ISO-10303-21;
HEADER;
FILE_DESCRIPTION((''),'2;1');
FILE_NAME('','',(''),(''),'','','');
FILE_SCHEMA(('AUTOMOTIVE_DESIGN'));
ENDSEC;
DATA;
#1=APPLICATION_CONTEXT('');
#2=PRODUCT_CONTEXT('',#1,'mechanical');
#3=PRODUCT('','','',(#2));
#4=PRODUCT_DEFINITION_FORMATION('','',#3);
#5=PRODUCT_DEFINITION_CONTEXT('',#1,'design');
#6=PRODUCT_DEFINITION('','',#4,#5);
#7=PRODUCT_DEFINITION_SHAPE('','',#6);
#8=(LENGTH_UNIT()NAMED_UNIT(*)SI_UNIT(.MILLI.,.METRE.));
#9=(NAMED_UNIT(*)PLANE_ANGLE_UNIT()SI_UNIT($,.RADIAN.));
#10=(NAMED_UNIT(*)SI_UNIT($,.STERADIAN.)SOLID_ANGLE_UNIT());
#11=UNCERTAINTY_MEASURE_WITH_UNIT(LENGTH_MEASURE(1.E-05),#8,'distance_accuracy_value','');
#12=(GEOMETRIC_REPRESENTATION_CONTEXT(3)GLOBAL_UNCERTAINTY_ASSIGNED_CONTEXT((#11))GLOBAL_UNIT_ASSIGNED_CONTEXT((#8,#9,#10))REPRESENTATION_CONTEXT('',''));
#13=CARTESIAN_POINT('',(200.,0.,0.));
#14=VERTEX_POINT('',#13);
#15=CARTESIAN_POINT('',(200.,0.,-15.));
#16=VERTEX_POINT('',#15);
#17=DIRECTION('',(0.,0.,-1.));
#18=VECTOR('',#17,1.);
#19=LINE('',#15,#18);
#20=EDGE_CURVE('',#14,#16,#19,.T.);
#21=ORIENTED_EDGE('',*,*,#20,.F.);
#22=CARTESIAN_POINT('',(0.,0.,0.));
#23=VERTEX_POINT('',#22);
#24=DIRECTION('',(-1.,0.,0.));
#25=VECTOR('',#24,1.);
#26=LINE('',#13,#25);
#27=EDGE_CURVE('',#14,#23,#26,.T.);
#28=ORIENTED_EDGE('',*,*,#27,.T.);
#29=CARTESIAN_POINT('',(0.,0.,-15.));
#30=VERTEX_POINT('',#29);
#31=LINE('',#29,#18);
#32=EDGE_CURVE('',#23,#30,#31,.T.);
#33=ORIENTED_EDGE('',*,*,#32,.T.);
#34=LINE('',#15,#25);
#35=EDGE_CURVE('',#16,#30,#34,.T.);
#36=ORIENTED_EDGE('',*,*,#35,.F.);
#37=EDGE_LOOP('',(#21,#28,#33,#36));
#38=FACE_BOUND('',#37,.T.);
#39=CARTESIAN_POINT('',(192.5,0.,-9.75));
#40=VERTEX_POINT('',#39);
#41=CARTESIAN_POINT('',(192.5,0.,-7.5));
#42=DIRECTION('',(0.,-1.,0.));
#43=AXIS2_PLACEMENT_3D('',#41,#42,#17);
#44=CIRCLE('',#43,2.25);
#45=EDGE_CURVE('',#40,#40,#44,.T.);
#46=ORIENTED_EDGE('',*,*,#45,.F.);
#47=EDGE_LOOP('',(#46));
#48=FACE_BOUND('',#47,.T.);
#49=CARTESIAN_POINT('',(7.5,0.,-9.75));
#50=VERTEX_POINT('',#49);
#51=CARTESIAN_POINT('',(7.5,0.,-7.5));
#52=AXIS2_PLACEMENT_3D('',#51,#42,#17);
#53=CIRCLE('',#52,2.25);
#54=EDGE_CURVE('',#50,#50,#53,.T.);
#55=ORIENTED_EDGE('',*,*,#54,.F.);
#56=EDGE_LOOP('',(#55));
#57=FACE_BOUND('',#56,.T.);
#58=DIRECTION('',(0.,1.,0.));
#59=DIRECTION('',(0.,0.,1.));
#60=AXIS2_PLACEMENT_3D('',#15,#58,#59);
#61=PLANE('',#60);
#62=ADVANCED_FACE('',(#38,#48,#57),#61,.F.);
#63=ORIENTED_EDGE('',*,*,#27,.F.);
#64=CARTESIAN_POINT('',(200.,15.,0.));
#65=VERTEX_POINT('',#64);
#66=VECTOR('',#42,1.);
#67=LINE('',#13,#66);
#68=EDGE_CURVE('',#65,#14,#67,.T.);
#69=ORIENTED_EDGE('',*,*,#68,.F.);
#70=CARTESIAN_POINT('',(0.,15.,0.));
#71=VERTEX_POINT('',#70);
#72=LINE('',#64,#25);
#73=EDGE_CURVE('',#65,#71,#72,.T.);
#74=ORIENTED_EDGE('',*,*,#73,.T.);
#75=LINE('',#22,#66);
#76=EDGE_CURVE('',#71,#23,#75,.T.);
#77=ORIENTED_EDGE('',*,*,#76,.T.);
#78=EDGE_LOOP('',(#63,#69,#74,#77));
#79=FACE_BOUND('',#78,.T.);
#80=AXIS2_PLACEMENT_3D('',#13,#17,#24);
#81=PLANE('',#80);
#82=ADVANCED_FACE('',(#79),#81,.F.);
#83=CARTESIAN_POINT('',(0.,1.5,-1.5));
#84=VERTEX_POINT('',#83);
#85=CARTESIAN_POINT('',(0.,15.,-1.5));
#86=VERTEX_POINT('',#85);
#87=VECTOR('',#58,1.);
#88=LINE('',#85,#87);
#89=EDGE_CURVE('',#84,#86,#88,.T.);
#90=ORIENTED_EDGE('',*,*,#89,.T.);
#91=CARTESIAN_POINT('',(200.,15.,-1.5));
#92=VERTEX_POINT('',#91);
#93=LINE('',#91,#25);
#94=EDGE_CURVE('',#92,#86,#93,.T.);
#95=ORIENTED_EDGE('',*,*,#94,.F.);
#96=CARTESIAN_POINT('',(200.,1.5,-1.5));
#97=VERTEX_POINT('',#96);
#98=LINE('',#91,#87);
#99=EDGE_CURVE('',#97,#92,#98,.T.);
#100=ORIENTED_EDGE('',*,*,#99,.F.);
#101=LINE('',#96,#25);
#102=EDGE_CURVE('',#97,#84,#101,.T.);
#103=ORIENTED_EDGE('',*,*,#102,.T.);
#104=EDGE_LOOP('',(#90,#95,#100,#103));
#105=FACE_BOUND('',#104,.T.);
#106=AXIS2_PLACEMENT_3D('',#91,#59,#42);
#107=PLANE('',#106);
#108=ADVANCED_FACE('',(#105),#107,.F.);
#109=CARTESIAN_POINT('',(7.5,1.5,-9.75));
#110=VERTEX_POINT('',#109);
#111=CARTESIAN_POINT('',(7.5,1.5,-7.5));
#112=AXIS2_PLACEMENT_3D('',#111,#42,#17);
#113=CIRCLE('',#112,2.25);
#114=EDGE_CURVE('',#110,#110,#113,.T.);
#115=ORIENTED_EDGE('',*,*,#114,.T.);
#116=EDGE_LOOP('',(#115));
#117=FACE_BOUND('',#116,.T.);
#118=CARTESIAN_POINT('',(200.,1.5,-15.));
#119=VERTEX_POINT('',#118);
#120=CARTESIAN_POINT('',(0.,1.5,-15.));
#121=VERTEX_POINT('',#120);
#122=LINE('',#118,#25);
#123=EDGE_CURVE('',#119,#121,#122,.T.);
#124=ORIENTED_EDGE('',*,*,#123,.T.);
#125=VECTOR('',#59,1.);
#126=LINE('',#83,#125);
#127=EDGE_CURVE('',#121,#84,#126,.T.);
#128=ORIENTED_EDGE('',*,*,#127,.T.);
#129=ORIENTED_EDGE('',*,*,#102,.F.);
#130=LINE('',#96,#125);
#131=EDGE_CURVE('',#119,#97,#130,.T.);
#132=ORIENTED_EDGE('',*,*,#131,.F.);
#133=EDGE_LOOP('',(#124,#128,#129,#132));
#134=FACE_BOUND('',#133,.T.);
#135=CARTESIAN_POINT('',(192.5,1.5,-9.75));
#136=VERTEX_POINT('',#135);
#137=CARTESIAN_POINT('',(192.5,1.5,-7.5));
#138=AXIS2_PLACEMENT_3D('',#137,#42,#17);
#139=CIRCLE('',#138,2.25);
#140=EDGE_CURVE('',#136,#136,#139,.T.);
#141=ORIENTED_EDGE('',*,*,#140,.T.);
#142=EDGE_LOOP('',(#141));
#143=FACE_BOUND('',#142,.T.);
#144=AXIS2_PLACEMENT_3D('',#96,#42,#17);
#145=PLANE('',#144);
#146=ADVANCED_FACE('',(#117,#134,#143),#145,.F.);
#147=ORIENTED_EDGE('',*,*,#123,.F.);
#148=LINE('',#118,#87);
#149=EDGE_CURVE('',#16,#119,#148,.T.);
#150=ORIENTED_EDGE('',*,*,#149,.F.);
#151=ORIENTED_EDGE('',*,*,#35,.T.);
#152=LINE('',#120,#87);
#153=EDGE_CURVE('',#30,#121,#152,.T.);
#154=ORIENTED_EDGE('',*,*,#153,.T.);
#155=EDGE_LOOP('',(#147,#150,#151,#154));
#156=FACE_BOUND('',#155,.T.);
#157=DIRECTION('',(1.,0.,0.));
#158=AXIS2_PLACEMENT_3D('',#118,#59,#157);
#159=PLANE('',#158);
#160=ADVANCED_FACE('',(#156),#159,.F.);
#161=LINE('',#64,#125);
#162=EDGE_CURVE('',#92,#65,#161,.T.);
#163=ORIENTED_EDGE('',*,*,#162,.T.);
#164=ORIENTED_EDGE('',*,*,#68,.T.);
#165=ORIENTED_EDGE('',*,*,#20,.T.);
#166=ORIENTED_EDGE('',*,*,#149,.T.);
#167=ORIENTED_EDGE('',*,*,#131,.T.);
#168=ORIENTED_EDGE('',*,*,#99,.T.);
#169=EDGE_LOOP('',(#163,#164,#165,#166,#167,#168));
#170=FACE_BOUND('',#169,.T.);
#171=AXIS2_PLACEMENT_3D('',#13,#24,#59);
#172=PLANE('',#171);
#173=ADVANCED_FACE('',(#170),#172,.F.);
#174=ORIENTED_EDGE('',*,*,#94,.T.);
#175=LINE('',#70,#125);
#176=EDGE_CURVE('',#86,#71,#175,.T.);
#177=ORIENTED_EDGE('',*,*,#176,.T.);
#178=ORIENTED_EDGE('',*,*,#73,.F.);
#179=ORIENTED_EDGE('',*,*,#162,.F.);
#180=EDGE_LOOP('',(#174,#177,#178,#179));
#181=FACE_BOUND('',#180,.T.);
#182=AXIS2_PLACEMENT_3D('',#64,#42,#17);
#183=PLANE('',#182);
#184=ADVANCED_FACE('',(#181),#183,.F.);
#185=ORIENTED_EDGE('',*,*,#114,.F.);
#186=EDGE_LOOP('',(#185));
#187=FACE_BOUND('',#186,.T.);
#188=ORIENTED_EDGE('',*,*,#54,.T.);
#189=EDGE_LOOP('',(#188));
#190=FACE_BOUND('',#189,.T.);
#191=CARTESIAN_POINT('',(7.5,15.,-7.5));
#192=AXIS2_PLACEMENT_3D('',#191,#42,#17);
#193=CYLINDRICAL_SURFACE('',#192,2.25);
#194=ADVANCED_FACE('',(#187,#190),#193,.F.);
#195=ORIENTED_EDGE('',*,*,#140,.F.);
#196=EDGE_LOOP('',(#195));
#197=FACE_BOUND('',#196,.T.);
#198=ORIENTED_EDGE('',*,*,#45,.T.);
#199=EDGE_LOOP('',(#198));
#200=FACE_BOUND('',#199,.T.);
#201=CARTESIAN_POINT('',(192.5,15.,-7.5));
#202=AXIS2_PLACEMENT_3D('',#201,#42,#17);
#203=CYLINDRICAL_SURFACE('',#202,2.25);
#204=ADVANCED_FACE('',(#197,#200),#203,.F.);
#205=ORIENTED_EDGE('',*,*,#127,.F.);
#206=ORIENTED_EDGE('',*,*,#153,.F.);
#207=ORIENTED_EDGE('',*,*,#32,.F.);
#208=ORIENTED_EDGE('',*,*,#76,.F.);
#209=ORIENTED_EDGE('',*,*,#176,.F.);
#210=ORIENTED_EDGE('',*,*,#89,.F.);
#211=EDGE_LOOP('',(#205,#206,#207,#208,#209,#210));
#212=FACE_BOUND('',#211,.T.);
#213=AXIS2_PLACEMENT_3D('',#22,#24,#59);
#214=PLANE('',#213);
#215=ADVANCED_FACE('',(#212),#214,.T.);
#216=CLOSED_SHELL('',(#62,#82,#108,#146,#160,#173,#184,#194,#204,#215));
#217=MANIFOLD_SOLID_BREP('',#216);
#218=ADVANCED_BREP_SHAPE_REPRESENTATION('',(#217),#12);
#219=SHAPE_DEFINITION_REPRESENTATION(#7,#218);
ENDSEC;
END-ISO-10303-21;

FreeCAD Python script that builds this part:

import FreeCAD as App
import Part
import Sketcher
Q = App.Units.Quantity

doc = App.newDocument("Part")
body = doc.addObject("PartDesign::Body", "Body")

# Sketch on YZ plane
sketch1 = body.newObject("Sketcher::SketchObject", "Sketch")
sketch1.AttachmentSupport = (doc.getObject("YZ_Plane"), [""])
sketch1.MapMode = "FlatFace"
sketch1.addGeometry([
    Part.LineSegment(App.Vector(15, 0, 0), App.Vector(0, 0, 0)),  # 0
    Part.LineSegment(App.Vector(0, 0, 0), App.Vector(0, -15, 0)),  # 1
    Part.LineSegment(App.Vector(0, -15, 0), App.Vector(1.5, -15, 0)),  # 2
    Part.LineSegment(App.Vector(1.5, -15, 0), App.Vector(1.5, -1.5, 0)),  # 3
    Part.LineSegment(App.Vector(1.5, -1.5, 0), App.Vector(15, -1.5, 0)),  # 4
    Part.LineSegment(App.Vector(15, -1.5, 0), App.Vector(15, 0, 0)),  # 5
], False)
sketch1.addConstraint([
    Sketcher.Constraint("Coincident", 0, 2, 1, 1),
    Sketcher.Constraint("Coincident", 1, 2, 2, 1),
    Sketcher.Constraint("Coincident", 2, 2, 3, 1),
    Sketcher.Constraint("Coincident", 3, 2, 4, 1),
    Sketcher.Constraint("Coincident", 4, 2, 5, 1),
    Sketcher.Constraint("Coincident", 5, 2, 0, 1),
    Sketcher.Constraint("Horizontal", 0),
    Sketcher.Constraint("Vertical", 1),
    Sketcher.Constraint("Horizontal", 2),
    Sketcher.Constraint("Vertical", 3),
    Sketcher.Constraint("Horizontal", 4),
    Sketcher.Constraint("Vertical", 5),
    Sketcher.Constraint("Coincident", 0, 2, -1, 1),
    Sketcher.Constraint("Equal", 0, 1),
    Sketcher.Constraint("Equal", 4, 3),
    Sketcher.Constraint("DistanceX", 0, 2, 0, 1, Q("15 mm")),
    Sketcher.Constraint("DistanceX", 2, 1, 2, 2, Q("1.5 mm")),
])
pad1 = body.newObject("PartDesign::Pad", "Pad")
pad1.Profile = sketch1
pad1.Length = 200

# Sketch on XZ plane
sketch2 = body.newObject("Sketcher::SketchObject", "Sketch001")
sketch2.AttachmentSupport = (doc.getObject("XZ_Plane"), [""])
sketch2.MapMode = "FlatFace"
sketch2.addGeometry([
    Part.Circle(App.Vector(7.5, -7.5, 0), App.Vector(0, 0, 1), 2.25),
    Part.Circle(App.Vector(192.5, -7.5, 0), App.Vector(0, 0, 1), 2.25),
], False)
sketch2.addConstraint([
    Sketcher.Constraint("Equal", 0, 1),
    Sketcher.Constraint("Horizontal", 0, 3, 1, 3),
    Sketcher.Constraint("Diameter", 0, Q("4.5 mm")),
    Sketcher.Constraint("DistanceX", 0, 3, 1, 3, Q("185 mm")),
    Sketcher.Constraint("DistanceX", -1, 1, 0, 3, Q("7.5 mm")),
    Sketcher.Constraint("DistanceY", 0, 3, -1, 1, Q("7.5 mm")),
])
pocket1 = body.newObject("PartDesign::Pocket", "Pocket")
pocket1.Profile = sketch2
pocket1.Type = "ThroughAll"

doc.recompute()
